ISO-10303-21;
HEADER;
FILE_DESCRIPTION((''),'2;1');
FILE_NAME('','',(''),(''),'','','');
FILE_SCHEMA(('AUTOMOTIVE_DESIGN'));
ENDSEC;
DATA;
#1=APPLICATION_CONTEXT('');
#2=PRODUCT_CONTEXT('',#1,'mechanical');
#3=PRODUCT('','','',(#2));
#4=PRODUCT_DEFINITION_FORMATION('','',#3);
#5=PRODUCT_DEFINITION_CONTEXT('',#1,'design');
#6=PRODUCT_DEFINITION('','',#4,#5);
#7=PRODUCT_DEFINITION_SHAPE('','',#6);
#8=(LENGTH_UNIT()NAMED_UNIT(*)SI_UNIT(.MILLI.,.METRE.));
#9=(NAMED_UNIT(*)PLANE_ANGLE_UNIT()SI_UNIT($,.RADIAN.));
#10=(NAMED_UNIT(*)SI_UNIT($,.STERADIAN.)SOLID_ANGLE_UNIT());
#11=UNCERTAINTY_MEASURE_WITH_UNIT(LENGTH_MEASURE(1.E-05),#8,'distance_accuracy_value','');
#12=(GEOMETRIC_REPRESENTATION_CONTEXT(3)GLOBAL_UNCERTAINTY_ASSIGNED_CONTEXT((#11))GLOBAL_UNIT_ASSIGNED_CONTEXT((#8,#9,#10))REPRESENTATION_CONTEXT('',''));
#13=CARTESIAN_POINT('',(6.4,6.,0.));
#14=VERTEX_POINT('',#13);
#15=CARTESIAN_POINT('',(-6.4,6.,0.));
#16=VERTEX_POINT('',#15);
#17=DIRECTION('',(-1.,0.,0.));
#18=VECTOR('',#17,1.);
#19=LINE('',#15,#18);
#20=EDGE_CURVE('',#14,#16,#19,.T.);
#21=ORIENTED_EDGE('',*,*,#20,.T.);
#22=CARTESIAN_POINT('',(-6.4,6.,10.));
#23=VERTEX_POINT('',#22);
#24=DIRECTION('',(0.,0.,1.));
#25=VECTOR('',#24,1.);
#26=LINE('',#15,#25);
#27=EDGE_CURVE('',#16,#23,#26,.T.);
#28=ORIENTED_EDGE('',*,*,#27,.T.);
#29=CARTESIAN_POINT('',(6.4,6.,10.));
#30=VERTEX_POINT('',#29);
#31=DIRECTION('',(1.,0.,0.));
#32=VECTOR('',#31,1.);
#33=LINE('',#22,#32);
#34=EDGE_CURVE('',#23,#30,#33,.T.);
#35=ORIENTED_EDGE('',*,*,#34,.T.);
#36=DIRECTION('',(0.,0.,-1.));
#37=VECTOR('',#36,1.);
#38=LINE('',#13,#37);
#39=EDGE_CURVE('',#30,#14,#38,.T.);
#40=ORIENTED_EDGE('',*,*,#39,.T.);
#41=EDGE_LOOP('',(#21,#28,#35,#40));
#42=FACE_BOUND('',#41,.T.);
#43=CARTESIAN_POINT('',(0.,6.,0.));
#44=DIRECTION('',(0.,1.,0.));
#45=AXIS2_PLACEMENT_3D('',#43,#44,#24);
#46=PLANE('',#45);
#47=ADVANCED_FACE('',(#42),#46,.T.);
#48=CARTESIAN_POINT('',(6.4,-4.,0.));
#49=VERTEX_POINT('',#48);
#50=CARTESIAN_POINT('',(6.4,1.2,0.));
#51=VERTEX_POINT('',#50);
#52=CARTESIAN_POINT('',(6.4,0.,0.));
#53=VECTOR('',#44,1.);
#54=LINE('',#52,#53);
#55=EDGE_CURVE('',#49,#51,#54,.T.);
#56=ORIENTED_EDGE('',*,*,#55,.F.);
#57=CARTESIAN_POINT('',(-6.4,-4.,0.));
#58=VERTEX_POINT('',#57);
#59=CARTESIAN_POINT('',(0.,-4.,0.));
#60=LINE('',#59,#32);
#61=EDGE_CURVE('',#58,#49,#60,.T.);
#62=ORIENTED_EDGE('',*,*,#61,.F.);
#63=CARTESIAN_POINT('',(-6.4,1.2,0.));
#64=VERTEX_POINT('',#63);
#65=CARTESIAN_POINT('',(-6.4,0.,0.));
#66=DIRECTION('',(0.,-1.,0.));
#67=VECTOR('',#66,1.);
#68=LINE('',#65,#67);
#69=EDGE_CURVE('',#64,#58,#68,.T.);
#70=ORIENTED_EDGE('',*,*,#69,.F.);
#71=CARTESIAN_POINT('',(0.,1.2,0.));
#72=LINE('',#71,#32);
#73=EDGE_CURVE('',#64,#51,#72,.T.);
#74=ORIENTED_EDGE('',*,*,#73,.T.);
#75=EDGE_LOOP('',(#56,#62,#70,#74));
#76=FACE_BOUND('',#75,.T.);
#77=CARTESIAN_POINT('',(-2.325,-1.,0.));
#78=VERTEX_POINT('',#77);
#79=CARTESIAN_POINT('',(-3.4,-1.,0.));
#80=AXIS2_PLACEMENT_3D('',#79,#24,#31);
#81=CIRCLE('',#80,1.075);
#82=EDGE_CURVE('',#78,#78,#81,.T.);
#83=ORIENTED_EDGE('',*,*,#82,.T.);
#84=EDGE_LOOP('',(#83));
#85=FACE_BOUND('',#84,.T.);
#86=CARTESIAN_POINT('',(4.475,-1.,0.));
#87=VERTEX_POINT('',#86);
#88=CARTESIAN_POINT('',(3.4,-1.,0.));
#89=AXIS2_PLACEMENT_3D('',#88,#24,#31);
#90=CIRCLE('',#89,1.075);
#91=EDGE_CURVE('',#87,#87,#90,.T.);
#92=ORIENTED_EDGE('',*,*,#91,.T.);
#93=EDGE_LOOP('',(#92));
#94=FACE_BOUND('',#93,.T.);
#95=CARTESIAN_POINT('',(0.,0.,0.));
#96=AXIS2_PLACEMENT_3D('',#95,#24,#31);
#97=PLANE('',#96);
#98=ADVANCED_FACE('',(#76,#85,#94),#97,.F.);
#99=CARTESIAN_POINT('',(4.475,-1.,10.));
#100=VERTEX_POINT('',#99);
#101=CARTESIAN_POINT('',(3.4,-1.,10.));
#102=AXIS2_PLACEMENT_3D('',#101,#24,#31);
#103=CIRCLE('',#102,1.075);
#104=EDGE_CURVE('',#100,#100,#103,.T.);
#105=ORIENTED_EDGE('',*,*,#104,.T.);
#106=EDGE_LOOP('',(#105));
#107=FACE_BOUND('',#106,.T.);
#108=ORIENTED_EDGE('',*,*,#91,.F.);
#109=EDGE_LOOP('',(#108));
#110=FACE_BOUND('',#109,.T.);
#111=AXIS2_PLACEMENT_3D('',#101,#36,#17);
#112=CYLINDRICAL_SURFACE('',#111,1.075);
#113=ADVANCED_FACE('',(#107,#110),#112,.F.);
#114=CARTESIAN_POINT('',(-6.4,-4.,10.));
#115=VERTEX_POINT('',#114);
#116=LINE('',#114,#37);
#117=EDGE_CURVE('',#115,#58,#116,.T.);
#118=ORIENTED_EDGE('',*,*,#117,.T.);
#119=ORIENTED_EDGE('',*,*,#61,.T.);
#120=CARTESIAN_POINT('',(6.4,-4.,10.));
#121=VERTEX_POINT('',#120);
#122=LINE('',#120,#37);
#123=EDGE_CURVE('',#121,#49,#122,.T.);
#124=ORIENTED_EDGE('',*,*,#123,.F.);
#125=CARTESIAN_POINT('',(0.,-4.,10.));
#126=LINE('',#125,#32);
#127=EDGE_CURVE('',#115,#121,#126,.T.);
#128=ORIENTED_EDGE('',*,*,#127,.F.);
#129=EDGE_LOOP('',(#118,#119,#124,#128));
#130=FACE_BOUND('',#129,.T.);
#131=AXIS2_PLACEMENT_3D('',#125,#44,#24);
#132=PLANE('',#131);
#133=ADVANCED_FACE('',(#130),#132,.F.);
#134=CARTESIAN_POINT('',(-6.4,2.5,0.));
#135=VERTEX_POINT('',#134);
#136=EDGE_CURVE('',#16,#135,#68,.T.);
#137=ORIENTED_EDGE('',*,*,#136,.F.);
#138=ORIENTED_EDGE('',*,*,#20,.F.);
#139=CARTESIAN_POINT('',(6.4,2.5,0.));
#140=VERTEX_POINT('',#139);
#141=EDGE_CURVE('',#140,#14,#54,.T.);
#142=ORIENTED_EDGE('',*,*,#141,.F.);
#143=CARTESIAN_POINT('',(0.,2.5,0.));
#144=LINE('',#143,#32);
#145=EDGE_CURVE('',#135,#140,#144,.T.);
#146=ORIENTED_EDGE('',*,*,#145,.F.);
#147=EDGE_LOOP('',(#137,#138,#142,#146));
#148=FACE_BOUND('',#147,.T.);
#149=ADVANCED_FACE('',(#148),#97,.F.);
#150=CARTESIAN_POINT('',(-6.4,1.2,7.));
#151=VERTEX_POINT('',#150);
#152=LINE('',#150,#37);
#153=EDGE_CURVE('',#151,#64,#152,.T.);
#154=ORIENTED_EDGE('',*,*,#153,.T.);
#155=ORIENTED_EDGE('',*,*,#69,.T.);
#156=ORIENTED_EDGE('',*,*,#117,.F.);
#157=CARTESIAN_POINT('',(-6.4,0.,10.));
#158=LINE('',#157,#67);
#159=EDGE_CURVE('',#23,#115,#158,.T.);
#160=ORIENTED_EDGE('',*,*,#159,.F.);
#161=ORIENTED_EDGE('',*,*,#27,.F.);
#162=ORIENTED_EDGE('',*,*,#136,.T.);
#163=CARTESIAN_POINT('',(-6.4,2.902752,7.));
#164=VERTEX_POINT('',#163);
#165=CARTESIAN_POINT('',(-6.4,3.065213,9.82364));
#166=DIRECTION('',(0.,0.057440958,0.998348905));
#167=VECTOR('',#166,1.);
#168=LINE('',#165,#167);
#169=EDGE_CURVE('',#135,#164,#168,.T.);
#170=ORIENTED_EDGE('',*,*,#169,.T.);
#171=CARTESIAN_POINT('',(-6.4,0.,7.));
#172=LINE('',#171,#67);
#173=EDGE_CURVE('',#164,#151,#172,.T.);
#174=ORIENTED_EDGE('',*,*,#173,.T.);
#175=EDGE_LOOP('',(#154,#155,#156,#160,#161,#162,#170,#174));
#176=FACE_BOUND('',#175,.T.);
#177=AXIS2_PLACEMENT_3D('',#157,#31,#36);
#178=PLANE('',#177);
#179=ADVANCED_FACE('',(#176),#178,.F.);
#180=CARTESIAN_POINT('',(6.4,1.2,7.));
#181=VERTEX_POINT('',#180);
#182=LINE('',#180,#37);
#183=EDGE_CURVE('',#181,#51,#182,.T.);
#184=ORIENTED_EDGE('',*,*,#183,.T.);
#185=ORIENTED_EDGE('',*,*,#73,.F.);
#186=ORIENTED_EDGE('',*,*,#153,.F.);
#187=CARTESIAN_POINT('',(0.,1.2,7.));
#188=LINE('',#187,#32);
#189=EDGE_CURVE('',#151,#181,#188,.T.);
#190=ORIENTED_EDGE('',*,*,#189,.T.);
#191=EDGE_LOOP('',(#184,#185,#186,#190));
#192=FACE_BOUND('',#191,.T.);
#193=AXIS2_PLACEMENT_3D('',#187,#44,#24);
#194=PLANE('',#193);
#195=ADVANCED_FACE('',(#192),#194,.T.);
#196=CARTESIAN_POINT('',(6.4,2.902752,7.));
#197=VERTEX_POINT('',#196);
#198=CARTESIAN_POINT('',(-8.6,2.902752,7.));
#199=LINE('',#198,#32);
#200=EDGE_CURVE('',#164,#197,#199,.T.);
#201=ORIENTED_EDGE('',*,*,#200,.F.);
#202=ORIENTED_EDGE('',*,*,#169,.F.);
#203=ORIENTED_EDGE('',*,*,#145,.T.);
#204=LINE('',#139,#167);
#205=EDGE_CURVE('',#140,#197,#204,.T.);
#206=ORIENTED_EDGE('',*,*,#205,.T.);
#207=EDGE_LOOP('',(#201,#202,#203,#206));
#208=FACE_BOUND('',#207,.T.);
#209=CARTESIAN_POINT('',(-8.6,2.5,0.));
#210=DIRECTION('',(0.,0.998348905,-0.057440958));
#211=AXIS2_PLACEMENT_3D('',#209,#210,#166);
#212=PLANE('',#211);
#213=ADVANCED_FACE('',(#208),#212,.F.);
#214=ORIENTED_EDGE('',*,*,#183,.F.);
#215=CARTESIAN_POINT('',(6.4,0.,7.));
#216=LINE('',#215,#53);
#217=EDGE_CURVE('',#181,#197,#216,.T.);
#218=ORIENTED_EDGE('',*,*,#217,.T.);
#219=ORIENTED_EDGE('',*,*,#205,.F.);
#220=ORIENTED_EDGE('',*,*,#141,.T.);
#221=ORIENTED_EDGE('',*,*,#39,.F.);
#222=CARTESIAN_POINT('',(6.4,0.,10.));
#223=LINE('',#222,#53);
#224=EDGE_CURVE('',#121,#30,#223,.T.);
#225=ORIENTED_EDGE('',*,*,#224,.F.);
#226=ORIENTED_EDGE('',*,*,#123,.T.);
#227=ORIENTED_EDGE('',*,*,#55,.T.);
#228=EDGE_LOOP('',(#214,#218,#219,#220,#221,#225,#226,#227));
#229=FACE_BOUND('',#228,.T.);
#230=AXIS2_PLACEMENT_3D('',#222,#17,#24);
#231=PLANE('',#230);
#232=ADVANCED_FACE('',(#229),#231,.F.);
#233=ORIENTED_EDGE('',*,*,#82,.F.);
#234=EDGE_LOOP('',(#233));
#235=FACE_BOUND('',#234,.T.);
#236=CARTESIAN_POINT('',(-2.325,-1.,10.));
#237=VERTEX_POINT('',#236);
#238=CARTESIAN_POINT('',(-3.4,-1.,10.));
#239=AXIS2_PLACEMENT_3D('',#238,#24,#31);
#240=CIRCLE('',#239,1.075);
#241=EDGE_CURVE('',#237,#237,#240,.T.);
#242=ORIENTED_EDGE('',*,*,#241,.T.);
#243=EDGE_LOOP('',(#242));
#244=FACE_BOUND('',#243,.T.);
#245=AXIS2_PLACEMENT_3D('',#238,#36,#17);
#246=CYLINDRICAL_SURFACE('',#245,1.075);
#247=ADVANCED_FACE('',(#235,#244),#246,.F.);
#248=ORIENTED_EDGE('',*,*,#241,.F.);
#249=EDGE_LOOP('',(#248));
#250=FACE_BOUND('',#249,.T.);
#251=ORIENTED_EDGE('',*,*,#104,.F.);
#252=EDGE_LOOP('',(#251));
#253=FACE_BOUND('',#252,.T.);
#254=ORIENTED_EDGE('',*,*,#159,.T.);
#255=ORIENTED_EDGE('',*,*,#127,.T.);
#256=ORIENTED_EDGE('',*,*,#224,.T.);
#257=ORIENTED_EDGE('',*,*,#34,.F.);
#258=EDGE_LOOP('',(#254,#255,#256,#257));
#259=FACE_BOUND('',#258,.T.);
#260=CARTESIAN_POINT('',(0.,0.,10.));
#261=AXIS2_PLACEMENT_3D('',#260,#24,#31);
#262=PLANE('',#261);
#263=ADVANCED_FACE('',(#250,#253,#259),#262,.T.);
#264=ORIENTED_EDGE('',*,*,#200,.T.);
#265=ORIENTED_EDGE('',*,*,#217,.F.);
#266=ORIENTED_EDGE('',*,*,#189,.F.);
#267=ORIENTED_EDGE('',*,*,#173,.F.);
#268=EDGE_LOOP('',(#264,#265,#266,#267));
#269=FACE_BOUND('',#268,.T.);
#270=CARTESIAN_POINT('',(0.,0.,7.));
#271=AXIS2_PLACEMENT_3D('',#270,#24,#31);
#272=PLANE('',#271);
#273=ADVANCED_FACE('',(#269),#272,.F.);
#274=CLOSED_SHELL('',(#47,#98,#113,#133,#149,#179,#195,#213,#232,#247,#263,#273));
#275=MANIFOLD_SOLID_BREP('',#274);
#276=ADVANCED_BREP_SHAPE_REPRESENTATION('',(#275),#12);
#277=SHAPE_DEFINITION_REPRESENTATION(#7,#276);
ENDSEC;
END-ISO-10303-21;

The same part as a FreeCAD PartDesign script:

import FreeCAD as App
import Part
import Sketcher

doc = App.newDocument("Part")
body = doc.addObject("PartDesign::Body", "Body")

# Sketch on XY plane
sketch1 = body.newObject("Sketcher::SketchObject", "Sketch")
sketch1.AttachmentSupport = (doc.getObject("XY_Plane"), [""])
sketch1.MapMode = "FlatFace"
sketch1.addGeometry(Part.LineSegment(App.Vector(6, 4, 0), App.Vector(-6, 4, 0)), False)
sketch1.addGeometry(Part.LineSegment(App.Vector(-6, 4, 0), App.Vector(-6, -4, 0)), False)
sketch1.addGeometry(Part.LineSegment(App.Vector(-6, -4, 0), App.Vector(6, -4, 0)), False)
sketch1.addGeometry(Part.LineSegment(App.Vector(6, -4, 0), App.Vector(6, 4, 0)), False)
sketch1.addConstraint(Sketcher.Constraint("Coincident", 0, 2, 1, 1))
sketch1.addConstraint(Sketcher.Constraint("Coincident", 1, 2, 2, 1))
sketch1.addConstraint(Sketcher.Constraint("Coincident", 2, 2, 3, 1))
sketch1.addConstraint(Sketcher.Constraint("Coincident", 3, 2, 0, 1))
sketch1.addConstraint(Sketcher.Constraint("Horizontal", 0))
sketch1.addConstraint(Sketcher.Constraint("Vertical", 1))
sketch1.addConstraint(Sketcher.Constraint("Horizontal", 2))
sketch1.addConstraint(Sketcher.Constraint("Vertical", 3))
sketch1.addConstraint(Sketcher.Constraint("Symmetric", 0, 2, 2, 2, -1, 1))
sketch1.addConstraint(Sketcher.Constraint("DistanceY", 1, 2, 1, 1, 8.0))
sketch1.addConstraint(Sketcher.Constraint("DistanceX", 0, 2, 0, 1, 12.8))
pad1 = body.newObject("PartDesign::Pad", "Pad")
pad1.Profile = sketch1
pad1.Length = 10

# Sketch on XY plane
sketch2 = body.newObject("Sketcher::SketchObject", "Sketch001")
sketch2.AttachmentSupport = (doc.getObject("XY_Plane"), [""])
sketch2.MapMode = "FlatFace"
sketch2.addGeometry(Part.LineSegment(App.Vector(-6.4, 2.5, 0), App.Vector(-6.4, 1.2, 0)), False)
sketch2.addGeometry(Part.LineSegment(App.Vector(-6.4, 1.2, 0), App.Vector(6.4, 1.2, 0)), False)
sketch2.addGeometry(Part.LineSegment(App.Vector(6.4, 1.2, 0), App.Vector(6.4, 2.5, 0)), False)
sketch2.addGeometry(Part.LineSegment(App.Vector(6.4, 2.5, 0), App.Vector(-6.4, 2.5, 0)), False)
sketch2.addConstraint(Sketcher.Constraint("Coincident", 0, 2, 1, 1))
sketch2.addConstraint(Sketcher.Constraint("Coincident", 1, 2, 2, 1))
sketch2.addConstraint(Sketcher.Constraint("Coincident", 2, 2, 3, 1))
sketch2.addConstraint(Sketcher.Constraint("Coincident", 3, 2, 0, 1))
sketch2.addConstraint(Sketcher.Constraint("Vertical", 0))
sketch2.addConstraint(Sketcher.Constraint("Horizontal", 1))
sketch2.addConstraint(Sketcher.Constraint("Vertical", 2))
sketch2.addConstraint(Sketcher.Constraint("Horizontal", 3))
sketch2.addConstraint(Sketcher.Constraint("DistanceX", 1, 1, 1, 2, 12.8))
sketch2.addConstraint(Sketcher.Constraint("DistanceY", 0, 2, 0, 1, 1.3))
sketch2.addConstraint(Sketcher.Constraint("DistanceX", 0, 2, -1, 1, 6.4))
sketch2.addConstraint(Sketcher.Constraint("DistanceY", -1, 1, 0, 2, 1.2))
pad2 = body.newObject("PartDesign::Pad", "Pad001")
pad2.Profile = sketch2
pad2.Length = 7

# Sketch on XY plane
sketch3 = body.newObject("Sketcher::SketchObject", "Sketch002")
sketch3.AttachmentSupport = (doc.getObject("XY_Plane"), [""])
sketch3.MapMode = "FlatFace"
sketch3.addGeometry(Part.LineSegment(App.Vector(-6.4, 2.5, 0), App.Vector(-6.4, 1.2, 0)), False)
sketch3.addGeometry(Part.LineSegment(App.Vector(-6.4, 1.2, 0), App.Vector(6.4, 1.2, 0)), False)
sketch3.addGeometry(Part.LineSegment(App.Vector(6.4, 1.2, 0), App.Vector(6.4, 2.5, 0)), False)
sketch3.addGeometry(Part.LineSegment(App.Vector(6.4, 2.5, 0), App.Vector(-6.4, 2.5, 0)), False)
sketch3.addConstraint(Sketcher.Constraint("Coincident", 0, 2, 1, 1))
sketch3.addConstraint(Sketcher.Constraint("Coincident", 1, 2, 2, 1))
sketch3.addConstraint(Sketcher.Constraint("Coincident", 2, 2, 3, 1))
sketch3.addConstraint(Sketcher.Constraint("Coincident", 3, 2, 0, 1))
sketch3.addConstraint(Sketcher.Constraint("Vertical", 0))
sketch3.addConstraint(Sketcher.Constraint("Horizontal", 1))
sketch3.addConstraint(Sketcher.Constraint("Vertical", 2))
sketch3.addConstraint(Sketcher.Constraint("Horizontal", 3))
sketch3.addConstraint(Sketcher.Constraint("DistanceX", 1, 1, 1, 2, 12.8))
sketch3.addConstraint(Sketcher.Constraint("DistanceY", 0, 2, 0, 1, 1.3))
sketch3.addConstraint(Sketcher.Constraint("DistanceX", 0, 2, -1, 1, 6.4))
sketch3.addConstraint(Sketcher.Constraint("DistanceY", -1, 1, 0, 2, 1.2))
pocket1 = body.newObject("PartDesign::Pocket", "Pocket")
pocket1.Profile = sketch3
pocket1.Length = 7
pocket1.Reversed = True

# Sketch on XY plane
sketch4 = body.newObject("Sketcher::SketchObject", "Sketch003")
sketch4.AttachmentSupport = (doc.getObject("XY_Plane"), [""])
sketch4.MapMode = "FlatFace"
sketch4.addGeometry(Part.Circle(App.Vector(3.4, -1, 0), App.Vector(0, 0, 1), 1.1), False)
sketch4.addGeometry(Part.Circle(App.Vector(-3.4, -1, 0), App.Vector(0, 0, 1), 1.1), False)
sketch4.addConstraint(Sketcher.Constraint("Equal", 0, 1))
sketch4.addConstraint(Sketcher.Constraint("Symmetric", 0, 3, 1, 3, -2))
sketch4.addConstraint(Sketcher.Constraint("Diameter", 0, 2.15))
sketch4.addConstraint(Sketcher.Constraint("DistanceY", 0, 3, -1, 1, 1.0))
sketch4.addConstraint(Sketcher.Constraint("DistanceX", -1, 1, 0, 3, 3.4))
pocket2 = body.newObject("PartDesign::Pocket", "Pocket001")
pocket2.Profile = sketch4
pocket2.Length = 10
pocket2.Reversed = True

# Sketch on XZ plane
sketch5 = body.newObject("Sketcher::SketchObject", "Sketch004")
sketch5.AttachmentSupport = (doc.getObject("XZ_Plane"), [""])
sketch5.MapMode = "FlatFace"
sketch5.AttachmentOffset = App.Placement(App.Vector(0, 0, -4), App.Rotation())
sketch5.addGeometry(Part.LineSegment(App.Vector(-6, 0, 0), App.Vector(-6, 10, 0)), False)
sketch5.addGeometry(Part.LineSegment(App.Vector(-6, 10, 0), App.Vector(6, 10, 0)), False)
sketch5.addGeometry(Part.LineSegment(App.Vector(6, 10, 0), App.Vector(6, 0, 0)), False)
sketch5.addGeometry(Part.LineSegment(App.Vector(6, 0, 0), App.Vector(-6, 0, 0)), False)
sketch5.addConstraint(Sketcher.Constraint("Coincident", 0, 2, 1, 1))
sketch5.addConstraint(Sketcher.Constraint("Coincident", 1, 2, 2, 1))
sketch5.addConstraint(Sketcher.Constraint("Coincident", 2, 2, 3, 1))
sketch5.addConstraint(Sketcher.Constraint("Coincident", 3, 2, 0, 1))
sketch5.addConstraint(Sketcher.Constraint("Vertical", 0))
sketch5.addConstraint(Sketcher.Constraint("Horizontal", 1))
sketch5.addConstraint(Sketcher.Constraint("Vertical", 2))
sketch5.addConstraint(Sketcher.Constraint("Horizontal", 3))
sketch5.addConstraint(Sketcher.Constraint("Symmetric", 2, 2, 3, 2, -1, 1))
sketch5.addConstraint(Sketcher.Constraint("DistanceY", 0, 1, 0, 2, 10.0))
sketch5.addConstraint(Sketcher.Constraint("DistanceX", 1, 1, 1, 2, 12.8))
pad3 = body.newObject("PartDesign::Pad", "Pad002")
pad3.Profile = sketch5
pad3.Length = 1
pad3.Reversed = True

# Sketch on YZ plane
sketch6 = body.newObject("Sketcher::SketchObject", "Sketch005")
sketch6.AttachmentSupport = (doc.getObject("YZ_Plane"), [""])
sketch6.MapMode = "FlatFace"
sketch6.AttachmentOffset = App.Placement(App.Vector(0, 0, 6.4), App.Rotation())
sketch6.addGeometry(Part.LineSegment(App.Vector(2.5, 0, 0), App.Vector(2.9, 7, 0)), False)
sketch6.addGeometry(Part.LineSegment(App.Vector(2.9, 7, 0), App.Vector(2.5, 7, 0)), False)
sketch6.addGeometry(Part.LineSegment(App.Vector(2.5, 7, 0), App.Vector(2.5, 0, 0)), False)
sketch6.addConstraint(Sketcher.Constraint("Coincident", 0, 2, 1, 1))
sketch6.addConstraint(Sketcher.Constraint("Coincident", 1, 2, 2, 1))
sketch6.addConstraint(Sketcher.Constraint("Coincident", 2, 2, 0, 1))
sketch6.addConstraint(Sketcher.Constraint("Horizontal", 1))
sketch6.addConstraint(Sketcher.Constraint("Vertical", 2))
sketch6.addConstraint(Sketcher.Constraint("PointOnObject", 2, 2, -1))
sketch6.addConstraint(Sketcher.Constraint("DistanceY", 2, 2, 2, 1, 7.0))
sketch6.addConstraint(Sketcher.Constraint("DistanceX", -1, 1, 1, 2, 2.5))
sketch6.addConstraint(Sketcher.Constraint("DistanceX", 1, 2, 1, 1, 0.402752))
pocket3 = body.newObject("PartDesign::Pocket", "Pocket002")
pocket3.Profile = sketch6
pocket3.Length = 15

# Sketch on XZ plane
sketch7 = body.newObject("Sketcher::SketchObject", "Sketch006")
sketch7.AttachmentSupport = (doc.getObject("XZ_Plane"), [""])
sketch7.MapMode = "FlatFace"
sketch7.AttachmentOffset = App.Placement(App.Vector(0, 0, -5), App.Rotation())
sketch7.addGeometry(Part.LineSegment(App.Vector(-6, 0, 0), App.Vector(-6, 10, 0)), False)
sketch7.addGeometry(Part.LineSegment(App.Vector(-6, 10, 0), App.Vector(6, 10, 0)), False)
sketch7.addGeometry(Part.LineSegment(App.Vector(6, 10, 0), App.Vector(6, 0, 0)), False)
sketch7.addGeometry(Part.LineSegment(App.Vector(6, 0, 0), App.Vector(-6, 0, 0)), False)
sketch7.addConstraint(Sketcher.Constraint("Coincident", 0, 2, 1, 1))
sketch7.addConstraint(Sketcher.Constraint("Coincident", 1, 2, 2, 1))
sketch7.addConstraint(Sketcher.Constraint("Coincident", 2, 2, 3, 1))
sketch7.addConstraint(Sketcher.Constraint("Coincident", 3, 2, 0, 1))
sketch7.addConstraint(Sketcher.Constraint("Vertical", 0))
sketch7.addConstraint(Sketcher.Constraint("Horizontal", 1))
sketch7.addConstraint(Sketcher.Constraint("Vertical", 2))
sketch7.addConstraint(Sketcher.Constraint("Horizontal", 3))
sketch7.addConstraint(Sketcher.Constraint("Symmetric", 2, 2, 3, 2, -1, 1))
sketch7.addConstraint(Sketcher.Constraint("DistanceY", 0, 1, 0, 2, 10.0))
sketch7.addConstraint(Sketcher.Constraint("DistanceX", 1, 1, 1, 2, 12.8))
pad4 = body.newObject("PartDesign::Pad", "Pad003")
pad4.Profile = sketch7
pad4.Length = 1
pad4.Reversed = True

doc.recompute()
